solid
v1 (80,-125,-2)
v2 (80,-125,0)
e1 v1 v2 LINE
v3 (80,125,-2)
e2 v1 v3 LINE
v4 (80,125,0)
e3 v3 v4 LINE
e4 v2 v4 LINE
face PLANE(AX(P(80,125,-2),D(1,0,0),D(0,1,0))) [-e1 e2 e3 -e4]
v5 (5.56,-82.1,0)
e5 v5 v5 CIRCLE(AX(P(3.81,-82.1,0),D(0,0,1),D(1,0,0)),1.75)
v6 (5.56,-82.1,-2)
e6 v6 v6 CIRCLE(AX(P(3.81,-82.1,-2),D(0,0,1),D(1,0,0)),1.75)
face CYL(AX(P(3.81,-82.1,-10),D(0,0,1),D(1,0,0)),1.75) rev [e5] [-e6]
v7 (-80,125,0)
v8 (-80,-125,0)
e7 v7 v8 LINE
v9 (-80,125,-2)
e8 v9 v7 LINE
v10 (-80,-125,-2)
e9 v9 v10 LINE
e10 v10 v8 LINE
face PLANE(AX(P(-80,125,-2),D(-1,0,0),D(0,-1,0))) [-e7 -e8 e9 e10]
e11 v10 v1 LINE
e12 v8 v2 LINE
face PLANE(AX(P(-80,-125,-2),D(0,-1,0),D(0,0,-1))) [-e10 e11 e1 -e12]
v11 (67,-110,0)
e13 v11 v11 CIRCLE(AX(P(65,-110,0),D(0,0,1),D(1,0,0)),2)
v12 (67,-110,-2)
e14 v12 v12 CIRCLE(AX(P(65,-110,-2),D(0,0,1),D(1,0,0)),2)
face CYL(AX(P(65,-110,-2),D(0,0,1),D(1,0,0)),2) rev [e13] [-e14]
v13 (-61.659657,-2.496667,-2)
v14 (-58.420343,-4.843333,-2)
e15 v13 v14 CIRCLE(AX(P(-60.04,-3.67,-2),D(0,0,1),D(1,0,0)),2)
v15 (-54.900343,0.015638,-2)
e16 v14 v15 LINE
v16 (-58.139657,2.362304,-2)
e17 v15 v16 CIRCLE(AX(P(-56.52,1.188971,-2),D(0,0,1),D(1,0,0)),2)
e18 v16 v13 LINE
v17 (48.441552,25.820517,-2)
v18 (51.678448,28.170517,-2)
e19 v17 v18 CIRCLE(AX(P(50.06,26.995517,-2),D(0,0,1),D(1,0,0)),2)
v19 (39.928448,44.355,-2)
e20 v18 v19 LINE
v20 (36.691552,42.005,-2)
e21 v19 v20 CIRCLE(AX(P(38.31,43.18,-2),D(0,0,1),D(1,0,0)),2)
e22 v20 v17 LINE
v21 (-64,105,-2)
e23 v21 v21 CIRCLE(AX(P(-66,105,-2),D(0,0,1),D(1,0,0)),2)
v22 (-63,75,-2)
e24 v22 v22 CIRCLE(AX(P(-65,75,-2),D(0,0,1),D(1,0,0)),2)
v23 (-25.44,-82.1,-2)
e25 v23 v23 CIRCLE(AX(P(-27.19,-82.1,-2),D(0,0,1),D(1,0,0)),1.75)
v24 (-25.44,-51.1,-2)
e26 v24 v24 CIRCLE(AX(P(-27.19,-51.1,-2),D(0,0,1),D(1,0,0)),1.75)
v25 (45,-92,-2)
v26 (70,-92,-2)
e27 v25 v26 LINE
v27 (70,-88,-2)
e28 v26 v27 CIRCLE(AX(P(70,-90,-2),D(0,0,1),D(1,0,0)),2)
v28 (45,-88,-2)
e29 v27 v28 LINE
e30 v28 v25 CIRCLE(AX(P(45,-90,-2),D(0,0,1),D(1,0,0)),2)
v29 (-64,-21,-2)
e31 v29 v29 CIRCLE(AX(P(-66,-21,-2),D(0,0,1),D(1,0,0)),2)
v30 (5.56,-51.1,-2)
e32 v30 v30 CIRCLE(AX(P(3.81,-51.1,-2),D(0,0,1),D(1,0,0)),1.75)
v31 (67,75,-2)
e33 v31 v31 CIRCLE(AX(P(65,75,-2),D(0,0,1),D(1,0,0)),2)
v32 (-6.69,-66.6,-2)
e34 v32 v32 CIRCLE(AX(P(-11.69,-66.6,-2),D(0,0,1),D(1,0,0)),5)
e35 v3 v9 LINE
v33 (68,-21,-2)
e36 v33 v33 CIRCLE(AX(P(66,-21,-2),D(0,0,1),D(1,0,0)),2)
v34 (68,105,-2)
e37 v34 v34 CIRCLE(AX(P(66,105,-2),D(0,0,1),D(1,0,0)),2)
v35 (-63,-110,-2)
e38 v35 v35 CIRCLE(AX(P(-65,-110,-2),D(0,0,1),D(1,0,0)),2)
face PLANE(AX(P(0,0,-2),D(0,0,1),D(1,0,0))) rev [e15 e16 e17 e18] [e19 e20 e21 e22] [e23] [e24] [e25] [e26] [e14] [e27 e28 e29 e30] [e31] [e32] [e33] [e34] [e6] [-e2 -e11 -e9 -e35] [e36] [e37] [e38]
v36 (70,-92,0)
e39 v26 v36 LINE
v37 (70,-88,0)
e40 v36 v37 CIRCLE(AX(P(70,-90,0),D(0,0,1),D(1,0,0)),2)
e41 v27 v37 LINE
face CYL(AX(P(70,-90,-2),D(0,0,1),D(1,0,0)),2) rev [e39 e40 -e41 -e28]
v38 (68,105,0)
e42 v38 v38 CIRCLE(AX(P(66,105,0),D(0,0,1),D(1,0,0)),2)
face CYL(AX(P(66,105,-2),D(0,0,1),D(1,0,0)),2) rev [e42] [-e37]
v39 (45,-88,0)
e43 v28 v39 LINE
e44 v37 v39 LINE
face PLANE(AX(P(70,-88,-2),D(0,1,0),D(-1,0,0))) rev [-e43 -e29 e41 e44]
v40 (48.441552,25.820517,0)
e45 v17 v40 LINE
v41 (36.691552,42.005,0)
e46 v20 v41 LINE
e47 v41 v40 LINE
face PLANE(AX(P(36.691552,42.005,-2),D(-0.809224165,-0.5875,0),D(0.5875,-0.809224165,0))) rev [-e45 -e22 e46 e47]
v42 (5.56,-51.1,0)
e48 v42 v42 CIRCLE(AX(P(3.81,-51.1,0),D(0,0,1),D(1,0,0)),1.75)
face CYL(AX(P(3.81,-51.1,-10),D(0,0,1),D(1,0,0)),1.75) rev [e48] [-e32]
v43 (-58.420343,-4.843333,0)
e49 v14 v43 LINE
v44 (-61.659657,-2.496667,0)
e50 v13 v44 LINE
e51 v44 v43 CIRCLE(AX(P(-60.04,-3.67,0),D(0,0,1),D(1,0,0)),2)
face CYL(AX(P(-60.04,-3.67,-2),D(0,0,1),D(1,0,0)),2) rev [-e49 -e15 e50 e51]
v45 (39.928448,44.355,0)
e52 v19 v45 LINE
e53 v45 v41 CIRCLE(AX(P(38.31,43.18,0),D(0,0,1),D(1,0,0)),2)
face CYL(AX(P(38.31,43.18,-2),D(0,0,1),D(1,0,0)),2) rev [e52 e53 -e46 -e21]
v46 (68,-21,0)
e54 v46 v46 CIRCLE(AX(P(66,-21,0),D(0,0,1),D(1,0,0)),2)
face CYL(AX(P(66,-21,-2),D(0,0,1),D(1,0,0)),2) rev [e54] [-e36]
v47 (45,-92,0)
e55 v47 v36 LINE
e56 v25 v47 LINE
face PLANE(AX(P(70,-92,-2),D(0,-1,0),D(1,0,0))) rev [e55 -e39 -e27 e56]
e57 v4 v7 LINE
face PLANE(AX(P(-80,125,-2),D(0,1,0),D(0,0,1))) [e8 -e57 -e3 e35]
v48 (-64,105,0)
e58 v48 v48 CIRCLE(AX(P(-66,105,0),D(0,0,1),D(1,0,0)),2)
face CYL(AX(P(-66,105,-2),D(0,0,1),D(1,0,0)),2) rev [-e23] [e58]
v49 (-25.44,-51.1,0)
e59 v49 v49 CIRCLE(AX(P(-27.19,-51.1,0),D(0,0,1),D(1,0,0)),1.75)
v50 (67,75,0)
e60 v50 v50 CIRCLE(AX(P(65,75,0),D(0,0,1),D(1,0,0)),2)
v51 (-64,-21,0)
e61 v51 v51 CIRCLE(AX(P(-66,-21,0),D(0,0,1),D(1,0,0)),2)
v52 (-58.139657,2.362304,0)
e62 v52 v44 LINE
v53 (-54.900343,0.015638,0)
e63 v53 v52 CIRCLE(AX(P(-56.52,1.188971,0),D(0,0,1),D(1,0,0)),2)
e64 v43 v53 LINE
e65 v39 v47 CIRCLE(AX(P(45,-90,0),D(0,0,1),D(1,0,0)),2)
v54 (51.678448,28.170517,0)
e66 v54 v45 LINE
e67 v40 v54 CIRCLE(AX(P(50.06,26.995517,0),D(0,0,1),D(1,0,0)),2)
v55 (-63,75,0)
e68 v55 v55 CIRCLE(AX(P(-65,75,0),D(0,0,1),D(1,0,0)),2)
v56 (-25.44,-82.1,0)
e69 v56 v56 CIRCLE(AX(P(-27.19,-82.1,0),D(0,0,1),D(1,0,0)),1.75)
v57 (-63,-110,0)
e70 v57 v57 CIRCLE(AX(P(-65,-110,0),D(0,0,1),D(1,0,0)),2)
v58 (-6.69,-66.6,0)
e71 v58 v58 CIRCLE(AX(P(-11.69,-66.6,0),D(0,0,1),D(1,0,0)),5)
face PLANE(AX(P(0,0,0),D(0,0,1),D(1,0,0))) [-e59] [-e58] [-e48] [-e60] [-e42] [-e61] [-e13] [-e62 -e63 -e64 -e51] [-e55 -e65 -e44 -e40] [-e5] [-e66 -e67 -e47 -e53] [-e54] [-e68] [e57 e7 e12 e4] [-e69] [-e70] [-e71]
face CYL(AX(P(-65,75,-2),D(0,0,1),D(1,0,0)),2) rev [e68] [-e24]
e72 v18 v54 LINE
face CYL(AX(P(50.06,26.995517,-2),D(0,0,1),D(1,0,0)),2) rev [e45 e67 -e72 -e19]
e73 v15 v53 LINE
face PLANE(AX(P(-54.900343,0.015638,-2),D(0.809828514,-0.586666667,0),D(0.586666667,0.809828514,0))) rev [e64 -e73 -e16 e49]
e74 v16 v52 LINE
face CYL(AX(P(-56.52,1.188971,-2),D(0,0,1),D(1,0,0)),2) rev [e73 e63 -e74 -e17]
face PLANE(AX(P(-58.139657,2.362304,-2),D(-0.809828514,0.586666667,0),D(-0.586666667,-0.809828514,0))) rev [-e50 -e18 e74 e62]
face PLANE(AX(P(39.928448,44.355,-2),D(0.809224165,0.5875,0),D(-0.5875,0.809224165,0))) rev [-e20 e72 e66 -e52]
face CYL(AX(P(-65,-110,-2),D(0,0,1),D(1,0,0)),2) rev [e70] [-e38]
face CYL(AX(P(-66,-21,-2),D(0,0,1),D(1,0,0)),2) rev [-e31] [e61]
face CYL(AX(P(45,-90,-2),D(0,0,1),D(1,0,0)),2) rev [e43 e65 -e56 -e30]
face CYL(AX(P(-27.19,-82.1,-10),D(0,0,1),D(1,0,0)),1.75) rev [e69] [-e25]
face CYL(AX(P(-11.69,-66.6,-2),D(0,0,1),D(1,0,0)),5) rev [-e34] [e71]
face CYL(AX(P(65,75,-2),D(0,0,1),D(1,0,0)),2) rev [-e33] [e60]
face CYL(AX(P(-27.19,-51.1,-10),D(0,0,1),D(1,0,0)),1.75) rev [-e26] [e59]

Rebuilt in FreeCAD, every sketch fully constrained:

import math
import FreeCAD as App
import Part
import Sketcher
Q = App.Units.Quantity

doc = App.newDocument("Part")
body = doc.addObject("PartDesign::Body", "Body")

sketch1 = body.newObject("Sketcher::SketchObject", "Sketch")
sketch1.AttachmentSupport = (doc.getObject("XY_Plane"), [""])
sketch1.MapMode = "FlatFace"
sketch1.addGeometry([
    Part.LineSegment(App.Vector(-80, 125, 0), App.Vector(-80, -125, 0)),
    Part.LineSegment(App.Vector(-80, -125, 0), App.Vector(80, -125, 0)),
    Part.LineSegment(App.Vector(80, -125, 0), App.Vector(80, 125, 0)),
    Part.LineSegment(App.Vector(80, 125, 0), App.Vector(-80, 125, 0)),
], False)
sketch1.addConstraint([
    Sketcher.Constraint("Coincident", 0, 2, 1, 1),
    Sketcher.Constraint("Coincident", 1, 2, 2, 1),
    Sketcher.Constraint("Coincident", 2, 2, 3, 1),
    Sketcher.Constraint("Coincident", 3, 2, 0, 1),
    Sketcher.Constraint("Vertical", 0),
    Sketcher.Constraint("Horizontal", 1),
    Sketcher.Constraint("Vertical", 2),
    Sketcher.Constraint("Horizontal", 3),
    Sketcher.Constraint("Symmetric", 0, 2, 2, 2, -1, 1),
    Sketcher.Constraint("DistanceX", 1, 1, 1, 2, Q("160 mm")),
    Sketcher.Constraint("DistanceY", 0, 2, 0, 1, Q("250 mm")),
])
pad1 = body.newObject("PartDesign::Pad", "Pad")
pad1.Profile = sketch1
pad1.Length = 2
pad1.Reversed = True

sketch2 = body.newObject("Sketcher::SketchObject", "Sketch001")
sketch2.AttachmentSupport = (doc.getObject("XY_Plane"), [""])
sketch2.MapMode = "FlatFace"
sketch2.addGeometry([
    Part.Circle(App.Vector(-11.7, -66.6, 0), App.Vector(0, 0, 1), 5),
    Part.Circle(App.Vector(-66, -21, 0), App.Vector(0, 0, 1), 2),
    Part.Circle(App.Vector(66, -21, 0), App.Vector(0, 0, 1), 2),
    Part.Circle(App.Vector(-66, 105, 0), App.Vector(0, 0, 1), 2),
    Part.Circle(App.Vector(66, 105, 0), App.Vector(0, 0, 1), 2),
    Part.Circle(App.Vector(65, 75, 0), App.Vector(0, 0, 1), 2),
    Part.Circle(App.Vector(-65, 75, 0), App.Vector(0, 0, 1), 2),
    Part.Circle(App.Vector(-65, -110, 0), App.Vector(0, 0, 1), 2),
    Part.Circle(App.Vector(65, -110, 0), App.Vector(0, 0, 1), 2),
    Part.LineSegment(App.Vector(45, -92, 0), App.Vector(70, -92, 0)),
    Part.ArcOfCircle(Part.Circle(App.Vector(70, -90, 0), App.Vector(0, 0, 1), 2), math.radians(-90), math.radians(90)),
    Part.LineSegment(App.Vector(70, -88, 0), App.Vector(45, -88, 0)),
    Part.ArcOfCircle(Part.Circle(App.Vector(45, -90, 0), App.Vector(0, 0, 1), 2), math.radians(90), math.radians(270)),
    Part.LineSegment(App.Vector(-58.4, -4.8, 0), App.Vector(-54.9, 0, 0)),
    Part.ArcOfCircle(Part.Circle(App.Vector(-56.5, 1.2, 0), App.Vector(0, 0, 1), 2), math.radians(-36), math.radians(144)),
    Part.LineSegment(App.Vector(-58.1, 2.4, 0), App.Vector(-61.7, -2.5, 0)),
    Part.ArcOfCircle(Part.Circle(App.Vector(-60, -3.7, 0), App.Vector(0, 0, 1), 2), math.radians(144), math.radians(324)),
    Part.LineSegment(App.Vector(51.7, 28.2, 0), App.Vector(39.9, 44.4, 0)),
    Part.ArcOfCircle(Part.Circle(App.Vector(38.3, 43.2, 0), App.Vector(0, 0, 1), 2), math.radians(36), math.radians(216)),
    Part.LineSegment(App.Vector(36.7, 42, 0), App.Vector(48.4, 25.8, 0)),
    Part.ArcOfCircle(Part.Circle(App.Vector(50.1, 27, 0), App.Vector(0, 0, 1), 2), math.radians(-144), math.radians(36)),
], False)
sketch2.addConstraint([
    Sketcher.Constraint("Tangent", 9, 2, 10, 1),
    Sketcher.Constraint("Tangent", 10, 2, 11, 1),
    Sketcher.Constraint("Tangent", 11, 2, 12, 1),
    Sketcher.Constraint("Tangent", 12, 2, 9, 1),
    Sketcher.Constraint("Tangent", 13, 2, 14, 1),
    Sketcher.Constraint("Tangent", 14, 2, 15, 1),
    Sketcher.Constraint("Tangent", 15, 2, 16, 1),
    Sketcher.Constraint("Tangent", 16, 2, 13, 1),
    Sketcher.Constraint("Tangent", 17, 2, 18, 1),
    Sketcher.Constraint("Tangent", 18, 2, 19, 1),
    Sketcher.Constraint("Tangent", 19, 2, 20, 1),
    Sketcher.Constraint("Tangent", 20, 2, 17, 1),
    Sketcher.Constraint("Horizontal", 9),
    Sketcher.Constraint("Horizontal", 11),
    Sketcher.Constraint("Equal", 1, 2),
    Sketcher.Constraint("Equal", 2, 3),
    Sketcher.Constraint("Equal", 3, 4),
    Sketcher.Constraint("Equal", 4, 5),
    Sketcher.Constraint("Equal", 5, 6),
    Sketcher.Constraint("Equal", 6, 7),
    Sketcher.Constraint("Equal", 7, 8),
    Sketcher.Constraint("Equal", 8, 10),
    Sketcher.Constraint("Equal", 12, 14),
    Sketcher.Constraint("Equal", 14, 16),
    Sketcher.Constraint("Equal", 16, 18),
    Sketcher.Constraint("Equal", 18, 20),
    Sketcher.Constraint("Symmetric", 1, 3, 2, 3, -2),
    Sketcher.Constraint("Symmetric", 3, 3, 4, 3, -2),
    Sketcher.Constraint("Symmetric", 5, 3, 6, 3, -2),
    Sketcher.Constraint("Symmetric", 7, 3, 8, 3, -2),
    Sketcher.Constraint("Vertical", 1, 3, 3, 3),
    Sketcher.Constraint("Vertical", 6, 3, 7, 3),
    Sketcher.Constraint("Diameter", 0, Q("10 mm")),
    Sketcher.Constraint("Diameter", 1, Q("4 mm")),
    Sketcher.Constraint("DistanceX", 9, 1, 9, 2, Q("25 mm")),
    Sketcher.Constraint("Distance", 13, Q("6 mm")),
    Sketcher.Constraint("Distance", 17, Q("20 mm")),
    Sketcher.Constraint("DistanceX", 1, 3, -1, 1, Q("66 mm")),
    Sketcher.Constraint("DistanceY", 1, 3, -1, 1, Q("21 mm")),
    Sketcher.Constraint("DistanceY", -1, 1, 3, 3, Q("105 mm")),
    Sketcher.Constraint("DistanceX", -1, 1, 5, 3, Q("65 mm")),
    Sketcher.Constraint("DistanceY", -1, 1, 5, 3, Q("75 mm")),
    Sketcher.Constraint("DistanceY", 7, 3, -1, 1, Q("110 mm")),
    Sketcher.Constraint("DistanceX", -1, 1, 10, 3, Q("70 mm")),
    Sketcher.Constraint("DistanceY", 10, 3, -1, 1, Q("90 mm")),
    Sketcher.Constraint("DistanceY", 0, 3, -1, 1, Q("66.6 mm")),
    Sketcher.Constraint("DistanceX", 0, 3, -1, 1, Q("11.69 mm")),
    Sketcher.Constraint("DistanceX", 14, 3, -1, 1, Q("56.52 mm")),
    Sketcher.Constraint("DistanceX", 16, 3, -1, 1, Q("60.04 mm")),
    Sketcher.Constraint("DistanceY", 16, 3, -1, 1, Q("3.67 mm")),
    Sketcher.Constraint("DistanceX", -1, 1, 18, 3, Q("38.31 mm")),
    Sketcher.Constraint("DistanceY", -1, 1, 18, 3, Q("43.18 mm")),
    Sketcher.Constraint("DistanceX", -1, 1, 20, 3, Q("50.06 mm")),
])
pocket1 = body.newObject("PartDesign::Pocket", "Pocket")
pocket1.Profile = sketch2
pocket1.Type = "ThroughAll"

sketch3 = body.newObject("Sketcher::SketchObject", "Sketch002")
sketch3.AttachmentSupport = (doc.getObject("XY_Plane"), [""])
sketch3.MapMode = "FlatFace"
sketch3.addGeometry([
    Part.Circle(App.Vector(-27.2, -51.1, 0), App.Vector(0, 0, 1), 1.8),
    Part.Circle(App.Vector(3.8, -51.1, 0), App.Vector(0, 0, 1), 1.8),
    Part.Circle(App.Vector(3.8, -82.1, 0), App.Vector(0, 0, 1), 1.8),
    Part.Circle(App.Vector(-27.2, -82.1, 0), App.Vector(0, 0, 1), 1.8),
], False)
sketch3.addConstraint([
    Sketcher.Constraint("Equal", 0, 1),
    Sketcher.Constraint("Equal", 1, 2),
    Sketcher.Constraint("Equal", 2, 3),
    Sketcher.Constraint("Horizontal", 0, 3, 1, 3),
    Sketcher.Constraint("Horizontal", 2, 3, 3, 3),
    Sketcher.Constraint("Vertical", 1, 3, 2, 3),
    Sketcher.Constraint("Vertical", 0, 3, 3, 3),
    Sketcher.Constraint("Diameter", 0, Q("3.5 mm")),
    Sketcher.Constraint("DistanceX", 0, 3, 1, 3, Q("31 mm")),
    Sketcher.Constraint("DistanceY", 2, 3, 1, 3, Q("31 mm")),
    Sketcher.Constraint("DistanceY", 0, 3, -1, 1, Q("51.1 mm")),
    Sketcher.Constraint("DistanceX", 0, 3, -1, 1, Q("27.19 mm")),
])
pocket2 = body.newObject("PartDesign::Pocket", "Pocket001")
pocket2.Profile = sketch3
pocket2.Length = 10

doc.recompute()
